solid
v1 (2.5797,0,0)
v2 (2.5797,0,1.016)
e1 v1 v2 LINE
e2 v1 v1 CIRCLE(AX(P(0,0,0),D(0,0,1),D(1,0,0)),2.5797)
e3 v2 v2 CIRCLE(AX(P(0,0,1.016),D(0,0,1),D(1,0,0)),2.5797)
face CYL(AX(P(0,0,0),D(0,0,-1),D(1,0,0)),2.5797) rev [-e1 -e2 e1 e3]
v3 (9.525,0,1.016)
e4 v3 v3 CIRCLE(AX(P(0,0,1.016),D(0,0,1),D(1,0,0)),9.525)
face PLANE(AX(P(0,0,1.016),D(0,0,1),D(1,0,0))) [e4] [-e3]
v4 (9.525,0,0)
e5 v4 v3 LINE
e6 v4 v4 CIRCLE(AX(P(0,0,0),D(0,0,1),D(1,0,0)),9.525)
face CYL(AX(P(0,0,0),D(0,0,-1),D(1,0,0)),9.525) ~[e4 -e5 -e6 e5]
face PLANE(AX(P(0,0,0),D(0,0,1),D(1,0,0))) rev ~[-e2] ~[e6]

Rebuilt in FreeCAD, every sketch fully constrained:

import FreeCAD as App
import Part
import Sketcher
Q = App.Units.Quantity

doc = App.newDocument("Part")
body = doc.addObject("PartDesign::Body", "Body")

# Sketch on XY plane
sketch1 = doc.addObject("Sketcher::SketchObject", "Sketch")
body.addObject(sketch1)
sketch1.AttachmentSupport = (doc.XY_Plane, [""])
sketch1.MapMode = "FlatFace"
sketch1.addGeometry([
    Part.Circle(App.Vector(0, 0, 0), App.Vector(0, 0, 1), 9.5),
    Part.Circle(App.Vector(0, 0, 0), App.Vector(0, 0, 1), 2.6),
], False)
sketch1.addConstraint([
    Sketcher.Constraint("Coincident", 0, 3, -1, 1),
    Sketcher.Constraint("Coincident", 1, 3, -1, 1),
    Sketcher.Constraint("Diameter", 0, Q("0.75 in")),
    Sketcher.Constraint("Diameter", 1, Q("0.203126 in")),
])
pad1 = doc.addObject("PartDesign::Pad", "Pad")
body.addObject(pad1)
pad1.Profile = sketch1
pad1.Length = Q("0.04 in")

doc.recompute()
